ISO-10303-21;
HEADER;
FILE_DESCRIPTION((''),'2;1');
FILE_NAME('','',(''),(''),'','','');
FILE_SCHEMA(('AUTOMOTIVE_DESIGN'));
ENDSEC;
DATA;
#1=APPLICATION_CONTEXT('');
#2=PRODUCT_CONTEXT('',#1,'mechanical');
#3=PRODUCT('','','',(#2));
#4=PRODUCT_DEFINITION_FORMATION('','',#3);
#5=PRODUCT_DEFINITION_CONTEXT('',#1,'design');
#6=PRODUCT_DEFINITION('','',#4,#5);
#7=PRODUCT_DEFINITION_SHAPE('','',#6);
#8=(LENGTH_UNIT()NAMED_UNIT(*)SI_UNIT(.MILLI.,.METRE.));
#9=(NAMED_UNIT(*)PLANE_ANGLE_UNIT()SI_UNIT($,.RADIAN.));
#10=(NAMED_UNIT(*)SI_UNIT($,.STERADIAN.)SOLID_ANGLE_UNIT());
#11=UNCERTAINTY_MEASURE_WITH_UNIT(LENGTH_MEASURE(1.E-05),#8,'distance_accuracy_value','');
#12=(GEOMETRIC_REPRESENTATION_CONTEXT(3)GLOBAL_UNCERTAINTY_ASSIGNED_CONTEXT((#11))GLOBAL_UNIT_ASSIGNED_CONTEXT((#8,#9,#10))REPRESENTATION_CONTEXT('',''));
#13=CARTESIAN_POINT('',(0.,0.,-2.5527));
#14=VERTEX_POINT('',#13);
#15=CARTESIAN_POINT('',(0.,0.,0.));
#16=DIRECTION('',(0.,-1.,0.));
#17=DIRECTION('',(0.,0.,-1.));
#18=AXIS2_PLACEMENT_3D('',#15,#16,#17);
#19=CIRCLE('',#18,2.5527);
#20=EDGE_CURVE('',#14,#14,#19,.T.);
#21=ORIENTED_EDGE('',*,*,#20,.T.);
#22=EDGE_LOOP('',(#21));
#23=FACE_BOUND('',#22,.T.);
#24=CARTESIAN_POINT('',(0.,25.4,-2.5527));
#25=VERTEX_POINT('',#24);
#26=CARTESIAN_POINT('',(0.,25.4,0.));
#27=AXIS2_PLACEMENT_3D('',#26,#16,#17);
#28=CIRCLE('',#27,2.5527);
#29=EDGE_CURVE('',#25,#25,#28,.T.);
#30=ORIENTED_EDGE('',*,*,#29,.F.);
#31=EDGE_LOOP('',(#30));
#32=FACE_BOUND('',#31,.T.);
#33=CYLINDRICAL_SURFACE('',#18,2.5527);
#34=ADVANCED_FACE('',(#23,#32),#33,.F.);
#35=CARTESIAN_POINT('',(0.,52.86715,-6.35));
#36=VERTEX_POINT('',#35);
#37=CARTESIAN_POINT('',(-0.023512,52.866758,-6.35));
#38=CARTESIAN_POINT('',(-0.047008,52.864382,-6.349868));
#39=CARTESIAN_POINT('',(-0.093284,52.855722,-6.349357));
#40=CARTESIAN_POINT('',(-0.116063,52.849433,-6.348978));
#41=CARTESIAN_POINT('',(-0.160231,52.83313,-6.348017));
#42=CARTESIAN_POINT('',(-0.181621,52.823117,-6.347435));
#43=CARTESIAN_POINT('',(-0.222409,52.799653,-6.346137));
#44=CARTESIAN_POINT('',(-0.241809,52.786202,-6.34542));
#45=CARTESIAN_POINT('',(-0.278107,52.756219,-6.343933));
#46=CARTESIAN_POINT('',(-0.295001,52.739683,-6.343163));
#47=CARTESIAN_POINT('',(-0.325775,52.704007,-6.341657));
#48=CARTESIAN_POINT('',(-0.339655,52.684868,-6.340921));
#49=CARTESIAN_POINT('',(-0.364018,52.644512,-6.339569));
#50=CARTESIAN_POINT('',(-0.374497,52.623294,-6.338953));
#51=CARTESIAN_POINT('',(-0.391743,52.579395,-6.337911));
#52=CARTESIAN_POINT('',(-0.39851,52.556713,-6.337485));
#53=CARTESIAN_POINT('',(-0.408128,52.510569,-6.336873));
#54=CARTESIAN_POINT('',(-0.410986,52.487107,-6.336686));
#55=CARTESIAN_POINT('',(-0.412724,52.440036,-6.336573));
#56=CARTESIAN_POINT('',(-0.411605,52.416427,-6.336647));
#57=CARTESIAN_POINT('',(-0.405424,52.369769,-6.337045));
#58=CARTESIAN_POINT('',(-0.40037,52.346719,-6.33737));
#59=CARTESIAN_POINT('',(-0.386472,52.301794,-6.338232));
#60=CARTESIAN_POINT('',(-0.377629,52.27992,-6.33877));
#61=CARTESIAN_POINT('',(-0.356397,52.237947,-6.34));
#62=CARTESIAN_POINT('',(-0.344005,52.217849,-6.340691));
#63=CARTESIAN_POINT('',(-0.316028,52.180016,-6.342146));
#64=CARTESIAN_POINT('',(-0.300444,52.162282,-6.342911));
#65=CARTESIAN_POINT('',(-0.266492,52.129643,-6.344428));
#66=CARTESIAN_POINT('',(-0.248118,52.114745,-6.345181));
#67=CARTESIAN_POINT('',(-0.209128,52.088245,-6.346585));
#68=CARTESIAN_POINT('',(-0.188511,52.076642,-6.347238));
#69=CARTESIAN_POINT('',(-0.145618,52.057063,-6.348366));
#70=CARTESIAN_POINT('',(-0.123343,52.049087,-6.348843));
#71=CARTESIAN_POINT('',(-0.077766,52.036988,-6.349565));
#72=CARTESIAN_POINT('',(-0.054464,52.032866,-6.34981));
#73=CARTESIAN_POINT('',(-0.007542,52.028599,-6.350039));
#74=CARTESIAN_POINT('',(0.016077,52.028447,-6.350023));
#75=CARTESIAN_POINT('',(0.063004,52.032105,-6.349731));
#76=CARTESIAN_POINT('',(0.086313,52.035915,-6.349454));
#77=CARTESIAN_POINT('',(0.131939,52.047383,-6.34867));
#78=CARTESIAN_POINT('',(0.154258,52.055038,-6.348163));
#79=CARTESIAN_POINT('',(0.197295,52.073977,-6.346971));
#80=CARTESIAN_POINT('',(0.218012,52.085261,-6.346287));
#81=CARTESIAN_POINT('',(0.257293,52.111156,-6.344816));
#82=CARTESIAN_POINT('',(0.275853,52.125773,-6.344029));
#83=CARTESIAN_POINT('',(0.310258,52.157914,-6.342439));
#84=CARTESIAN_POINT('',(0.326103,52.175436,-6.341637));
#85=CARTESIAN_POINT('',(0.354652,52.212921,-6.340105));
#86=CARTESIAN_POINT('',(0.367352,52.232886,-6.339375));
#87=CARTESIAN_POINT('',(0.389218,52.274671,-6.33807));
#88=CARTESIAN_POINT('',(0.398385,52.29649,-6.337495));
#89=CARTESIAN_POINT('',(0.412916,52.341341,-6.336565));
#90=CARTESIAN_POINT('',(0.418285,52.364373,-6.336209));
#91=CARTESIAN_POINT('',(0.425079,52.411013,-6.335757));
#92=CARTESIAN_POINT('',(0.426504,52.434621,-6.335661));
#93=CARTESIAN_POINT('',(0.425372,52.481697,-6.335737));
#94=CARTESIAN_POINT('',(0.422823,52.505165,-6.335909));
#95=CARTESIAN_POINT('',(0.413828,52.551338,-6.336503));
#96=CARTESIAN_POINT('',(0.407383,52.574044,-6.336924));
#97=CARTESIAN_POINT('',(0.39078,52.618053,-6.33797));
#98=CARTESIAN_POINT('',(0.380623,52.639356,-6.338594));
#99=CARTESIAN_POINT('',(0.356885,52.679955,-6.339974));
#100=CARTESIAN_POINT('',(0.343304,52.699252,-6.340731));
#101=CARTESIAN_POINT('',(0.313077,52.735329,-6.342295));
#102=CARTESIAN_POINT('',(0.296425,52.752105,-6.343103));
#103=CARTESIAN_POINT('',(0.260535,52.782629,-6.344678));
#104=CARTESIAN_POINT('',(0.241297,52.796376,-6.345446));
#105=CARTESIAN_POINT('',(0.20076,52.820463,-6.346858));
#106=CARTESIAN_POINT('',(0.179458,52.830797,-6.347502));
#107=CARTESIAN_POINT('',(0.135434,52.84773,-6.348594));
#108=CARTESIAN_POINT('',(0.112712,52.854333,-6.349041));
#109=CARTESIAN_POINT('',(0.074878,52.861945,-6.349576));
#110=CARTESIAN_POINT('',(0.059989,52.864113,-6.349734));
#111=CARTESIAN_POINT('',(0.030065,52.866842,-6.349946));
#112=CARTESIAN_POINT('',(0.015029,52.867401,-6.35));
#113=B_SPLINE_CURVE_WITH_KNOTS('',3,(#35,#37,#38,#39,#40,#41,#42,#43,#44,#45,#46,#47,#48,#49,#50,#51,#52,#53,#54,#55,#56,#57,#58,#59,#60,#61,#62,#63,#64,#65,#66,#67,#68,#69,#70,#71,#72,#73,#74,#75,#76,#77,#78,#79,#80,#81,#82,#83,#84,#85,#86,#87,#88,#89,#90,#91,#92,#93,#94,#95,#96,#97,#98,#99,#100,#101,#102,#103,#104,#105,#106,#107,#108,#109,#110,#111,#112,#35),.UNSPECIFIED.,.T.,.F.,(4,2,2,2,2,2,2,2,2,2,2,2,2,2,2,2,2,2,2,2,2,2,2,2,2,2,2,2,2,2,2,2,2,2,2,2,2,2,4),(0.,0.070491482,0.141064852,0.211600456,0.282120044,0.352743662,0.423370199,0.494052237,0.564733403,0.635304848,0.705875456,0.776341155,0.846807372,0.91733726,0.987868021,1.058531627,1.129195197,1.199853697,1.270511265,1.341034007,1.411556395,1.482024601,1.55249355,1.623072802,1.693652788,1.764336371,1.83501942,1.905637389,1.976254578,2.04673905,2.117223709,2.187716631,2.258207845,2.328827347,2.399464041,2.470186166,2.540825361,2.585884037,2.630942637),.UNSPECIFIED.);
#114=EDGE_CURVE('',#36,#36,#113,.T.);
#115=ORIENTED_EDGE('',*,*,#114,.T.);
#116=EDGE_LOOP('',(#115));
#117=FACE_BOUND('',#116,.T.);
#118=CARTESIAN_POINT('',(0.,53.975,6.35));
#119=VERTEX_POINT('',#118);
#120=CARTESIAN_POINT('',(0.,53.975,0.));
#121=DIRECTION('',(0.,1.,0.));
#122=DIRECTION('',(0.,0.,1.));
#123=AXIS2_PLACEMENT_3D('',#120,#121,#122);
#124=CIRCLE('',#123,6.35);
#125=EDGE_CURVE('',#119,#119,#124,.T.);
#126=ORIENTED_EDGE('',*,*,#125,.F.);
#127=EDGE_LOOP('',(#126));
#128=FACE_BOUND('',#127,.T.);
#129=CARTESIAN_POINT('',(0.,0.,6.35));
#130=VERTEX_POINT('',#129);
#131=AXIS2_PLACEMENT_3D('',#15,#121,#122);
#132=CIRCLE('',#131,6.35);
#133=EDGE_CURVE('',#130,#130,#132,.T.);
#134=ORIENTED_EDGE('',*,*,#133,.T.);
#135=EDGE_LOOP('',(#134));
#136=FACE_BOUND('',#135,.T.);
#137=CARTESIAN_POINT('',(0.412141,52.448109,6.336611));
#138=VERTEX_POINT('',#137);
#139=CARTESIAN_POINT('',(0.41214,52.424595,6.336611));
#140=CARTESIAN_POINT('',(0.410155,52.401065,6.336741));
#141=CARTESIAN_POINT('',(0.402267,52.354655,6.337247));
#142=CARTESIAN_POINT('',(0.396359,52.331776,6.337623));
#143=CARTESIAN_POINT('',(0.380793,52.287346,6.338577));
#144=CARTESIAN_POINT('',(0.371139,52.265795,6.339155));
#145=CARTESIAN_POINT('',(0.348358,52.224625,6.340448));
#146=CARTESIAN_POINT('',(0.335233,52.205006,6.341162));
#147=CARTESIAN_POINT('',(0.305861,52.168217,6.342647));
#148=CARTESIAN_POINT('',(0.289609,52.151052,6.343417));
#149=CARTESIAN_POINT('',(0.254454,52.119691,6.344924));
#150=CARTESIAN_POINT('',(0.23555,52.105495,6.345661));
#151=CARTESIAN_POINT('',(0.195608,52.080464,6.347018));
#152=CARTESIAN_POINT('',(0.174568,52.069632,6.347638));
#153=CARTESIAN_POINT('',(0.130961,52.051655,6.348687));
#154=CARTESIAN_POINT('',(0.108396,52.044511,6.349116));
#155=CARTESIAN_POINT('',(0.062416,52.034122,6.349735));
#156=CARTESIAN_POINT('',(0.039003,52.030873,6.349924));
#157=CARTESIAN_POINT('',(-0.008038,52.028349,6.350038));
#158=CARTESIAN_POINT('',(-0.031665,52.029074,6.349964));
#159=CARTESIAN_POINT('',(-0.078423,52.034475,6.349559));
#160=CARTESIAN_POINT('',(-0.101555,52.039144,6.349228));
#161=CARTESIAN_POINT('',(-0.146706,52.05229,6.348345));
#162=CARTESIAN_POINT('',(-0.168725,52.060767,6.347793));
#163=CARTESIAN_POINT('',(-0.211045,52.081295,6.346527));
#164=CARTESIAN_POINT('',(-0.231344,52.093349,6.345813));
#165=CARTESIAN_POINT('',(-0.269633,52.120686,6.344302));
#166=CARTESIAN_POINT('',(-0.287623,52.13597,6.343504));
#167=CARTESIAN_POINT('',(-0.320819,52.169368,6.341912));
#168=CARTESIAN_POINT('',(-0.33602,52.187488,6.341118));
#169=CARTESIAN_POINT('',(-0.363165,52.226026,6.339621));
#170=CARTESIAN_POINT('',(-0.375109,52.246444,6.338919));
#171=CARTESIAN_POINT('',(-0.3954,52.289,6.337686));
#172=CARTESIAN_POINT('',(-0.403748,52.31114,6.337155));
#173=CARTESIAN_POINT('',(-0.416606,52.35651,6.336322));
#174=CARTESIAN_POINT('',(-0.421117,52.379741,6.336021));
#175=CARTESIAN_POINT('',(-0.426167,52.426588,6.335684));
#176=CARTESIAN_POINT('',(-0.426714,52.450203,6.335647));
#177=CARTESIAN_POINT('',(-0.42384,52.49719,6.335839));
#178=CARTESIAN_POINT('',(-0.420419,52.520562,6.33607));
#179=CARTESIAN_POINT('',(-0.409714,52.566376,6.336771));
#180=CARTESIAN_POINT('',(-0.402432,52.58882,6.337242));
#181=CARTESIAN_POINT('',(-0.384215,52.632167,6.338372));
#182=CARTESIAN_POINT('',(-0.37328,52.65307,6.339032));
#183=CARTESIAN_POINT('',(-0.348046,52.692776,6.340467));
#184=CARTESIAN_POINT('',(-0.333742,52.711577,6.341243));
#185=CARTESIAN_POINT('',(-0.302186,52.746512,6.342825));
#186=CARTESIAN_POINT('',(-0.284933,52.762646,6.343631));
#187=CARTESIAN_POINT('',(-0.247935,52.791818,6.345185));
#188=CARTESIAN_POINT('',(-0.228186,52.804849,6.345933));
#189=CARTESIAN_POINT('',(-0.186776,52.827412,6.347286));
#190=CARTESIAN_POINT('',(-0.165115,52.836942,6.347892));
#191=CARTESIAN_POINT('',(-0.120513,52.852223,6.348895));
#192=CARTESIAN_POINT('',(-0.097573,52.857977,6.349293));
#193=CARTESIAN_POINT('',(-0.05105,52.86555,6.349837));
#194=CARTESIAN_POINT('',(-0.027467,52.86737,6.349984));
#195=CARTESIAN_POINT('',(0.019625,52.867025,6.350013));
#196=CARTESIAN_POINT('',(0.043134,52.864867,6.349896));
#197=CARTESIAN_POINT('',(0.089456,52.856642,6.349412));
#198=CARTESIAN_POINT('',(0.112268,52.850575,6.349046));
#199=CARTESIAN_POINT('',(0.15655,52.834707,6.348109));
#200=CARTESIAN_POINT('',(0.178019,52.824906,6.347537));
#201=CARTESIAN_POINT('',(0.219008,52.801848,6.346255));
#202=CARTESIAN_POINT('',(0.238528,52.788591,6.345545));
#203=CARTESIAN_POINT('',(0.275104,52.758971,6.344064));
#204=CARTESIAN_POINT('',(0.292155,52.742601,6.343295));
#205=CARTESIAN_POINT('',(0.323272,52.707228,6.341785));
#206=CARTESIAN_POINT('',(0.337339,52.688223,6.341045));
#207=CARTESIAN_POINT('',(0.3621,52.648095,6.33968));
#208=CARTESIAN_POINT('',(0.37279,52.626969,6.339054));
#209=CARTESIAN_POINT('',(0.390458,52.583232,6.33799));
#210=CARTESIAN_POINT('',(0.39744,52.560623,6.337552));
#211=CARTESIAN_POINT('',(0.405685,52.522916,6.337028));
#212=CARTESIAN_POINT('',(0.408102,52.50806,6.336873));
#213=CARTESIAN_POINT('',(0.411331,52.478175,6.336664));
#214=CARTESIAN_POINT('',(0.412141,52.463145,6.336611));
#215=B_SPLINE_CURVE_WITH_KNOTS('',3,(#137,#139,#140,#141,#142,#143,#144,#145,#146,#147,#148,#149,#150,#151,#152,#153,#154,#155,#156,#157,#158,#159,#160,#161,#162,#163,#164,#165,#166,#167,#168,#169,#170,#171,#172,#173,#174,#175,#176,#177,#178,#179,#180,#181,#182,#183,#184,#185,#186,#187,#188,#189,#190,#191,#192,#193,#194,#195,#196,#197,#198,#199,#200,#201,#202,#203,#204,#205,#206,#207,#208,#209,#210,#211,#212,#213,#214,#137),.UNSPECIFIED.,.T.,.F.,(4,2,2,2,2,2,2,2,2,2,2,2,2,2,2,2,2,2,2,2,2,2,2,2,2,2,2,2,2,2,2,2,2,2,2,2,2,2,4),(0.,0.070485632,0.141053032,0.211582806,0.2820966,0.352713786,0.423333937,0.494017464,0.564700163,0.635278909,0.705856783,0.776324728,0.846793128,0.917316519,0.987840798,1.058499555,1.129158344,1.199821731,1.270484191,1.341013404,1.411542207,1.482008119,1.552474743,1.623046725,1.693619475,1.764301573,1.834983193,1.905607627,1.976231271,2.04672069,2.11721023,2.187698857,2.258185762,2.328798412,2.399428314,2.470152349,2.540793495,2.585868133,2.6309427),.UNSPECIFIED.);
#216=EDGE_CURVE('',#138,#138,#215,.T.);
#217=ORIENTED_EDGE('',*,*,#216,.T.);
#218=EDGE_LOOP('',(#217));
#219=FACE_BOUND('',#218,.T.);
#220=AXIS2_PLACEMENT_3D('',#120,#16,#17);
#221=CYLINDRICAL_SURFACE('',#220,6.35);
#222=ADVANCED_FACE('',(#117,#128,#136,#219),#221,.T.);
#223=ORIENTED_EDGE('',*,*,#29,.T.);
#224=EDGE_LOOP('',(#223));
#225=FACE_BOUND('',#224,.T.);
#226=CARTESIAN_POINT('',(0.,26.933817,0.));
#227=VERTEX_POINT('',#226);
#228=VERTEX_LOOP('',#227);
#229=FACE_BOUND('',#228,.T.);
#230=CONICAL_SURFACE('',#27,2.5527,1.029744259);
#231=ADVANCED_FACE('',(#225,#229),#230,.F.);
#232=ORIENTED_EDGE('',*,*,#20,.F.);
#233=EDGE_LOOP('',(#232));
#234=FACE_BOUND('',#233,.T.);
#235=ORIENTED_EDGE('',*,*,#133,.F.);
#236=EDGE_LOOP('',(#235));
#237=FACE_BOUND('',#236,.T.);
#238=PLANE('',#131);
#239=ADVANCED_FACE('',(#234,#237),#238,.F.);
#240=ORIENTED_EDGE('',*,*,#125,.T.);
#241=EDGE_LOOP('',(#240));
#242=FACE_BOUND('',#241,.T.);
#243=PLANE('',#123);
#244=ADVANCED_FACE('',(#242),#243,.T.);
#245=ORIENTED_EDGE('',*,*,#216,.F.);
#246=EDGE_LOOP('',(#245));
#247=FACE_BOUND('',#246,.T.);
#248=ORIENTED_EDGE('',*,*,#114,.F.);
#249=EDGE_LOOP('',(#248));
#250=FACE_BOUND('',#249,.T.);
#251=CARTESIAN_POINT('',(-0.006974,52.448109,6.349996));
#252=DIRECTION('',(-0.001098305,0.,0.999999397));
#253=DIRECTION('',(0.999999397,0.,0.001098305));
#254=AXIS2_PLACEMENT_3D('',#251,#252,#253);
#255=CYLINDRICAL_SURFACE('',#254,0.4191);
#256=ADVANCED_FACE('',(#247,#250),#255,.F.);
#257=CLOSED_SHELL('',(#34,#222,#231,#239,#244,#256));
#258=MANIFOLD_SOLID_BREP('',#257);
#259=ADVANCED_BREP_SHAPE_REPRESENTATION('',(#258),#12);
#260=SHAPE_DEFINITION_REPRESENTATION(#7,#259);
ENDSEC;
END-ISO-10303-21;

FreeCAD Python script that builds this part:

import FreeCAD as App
import Part
import Sketcher
Q = App.Units.Quantity

doc = App.newDocument("Part")
body = doc.addObject("PartDesign::Body", "Body")

# Sketch on XZ plane
sketch1 = doc.addObject("Sketcher::SketchObject", "Sketch")
body.addObject(sketch1)
sketch1.AttachmentSupport = (doc.XZ_Plane, [""])
sketch1.MapMode = "FlatFace"
sketch1.addGeometry(Part.Circle(App.Vector(0, 0, 0), App.Vector(0, 0, 1), 6), False)
sketch1.addConstraint([
    Sketcher.Constraint("Coincident", 0, 3, -1, 1),
    Sketcher.Constraint("Diameter", 0, Q("0.5 in")),
])
pad1 = doc.addObject("PartDesign::Pad", "Pad")
body.addObject(pad1)
pad1.Profile = sketch1
pad1.Length = Q("2.125 in")
pad1.Reversed = True

# Sketch on XZ plane
sketch2 = doc.addObject("Sketcher::SketchObject", "Sketch001")
body.addObject(sketch2)
sketch2.AttachmentSupport = (doc.XZ_Plane, [""])
sketch2.MapMode = "FlatFace"
sketch2.addGeometry(Part.Circle(App.Vector(0, 0, 0), App.Vector(0, 0, 1), 2.6), False)
sketch2.addConstraint([
    Sketcher.Constraint("Coincident", 0, 3, -1, 1),
    Sketcher.Constraint("Diameter", 0, Q("0.201 in")),
])
doc.recompute()
hole = doc.addObject("PartDesign::Hole", "Hole")
body.addObject(hole)
hole.Profile = sketch2
hole.ThreadType = "None"
hole.Diameter = Q("0.201 in")
hole.DepthType = "Dimension"
hole.Depth = Q("1 in")
hole.DrillPoint = "Angled"
hole.DrillPointAngle = 118

# Sketch on an angled plane
sketch3 = doc.addObject("Sketcher::SketchObject", "Sketch002")
body.addObject(sketch3)
sketch3.Placement = App.Placement(App.Vector(-0.006974, 0, 6.349996), App.Rotation(App.Vector(0.999999397, 0, 0.001098305), App.Vector(0, 1, 0), App.Vector(-0.001098305, 0, 0.999999397), "ZXY"))
sketch3.addGeometry(Part.Circle(App.Vector(0, 52.45, 0), App.Vector(0, 0, 1), 0.42), False)
sketch3.addConstraint([
    Sketcher.Constraint("PointOnObject", 0, 3, -2),
    Sketcher.Constraint("Diameter", 0, Q("0.033 in")),
    Sketcher.Constraint("DistanceY", -1, 1, 0, 3, Q("52.448109 mm")),
])
doc.recompute()
hole2 = doc.addObject("PartDesign::Hole", "Hole001")
body.addObject(hole2)
hole2.Profile = sketch3
hole2.ThreadType = "None"
hole2.Diameter = Q("0.033 in")
hole2.DepthType = "ThroughAll"

doc.recompute()
